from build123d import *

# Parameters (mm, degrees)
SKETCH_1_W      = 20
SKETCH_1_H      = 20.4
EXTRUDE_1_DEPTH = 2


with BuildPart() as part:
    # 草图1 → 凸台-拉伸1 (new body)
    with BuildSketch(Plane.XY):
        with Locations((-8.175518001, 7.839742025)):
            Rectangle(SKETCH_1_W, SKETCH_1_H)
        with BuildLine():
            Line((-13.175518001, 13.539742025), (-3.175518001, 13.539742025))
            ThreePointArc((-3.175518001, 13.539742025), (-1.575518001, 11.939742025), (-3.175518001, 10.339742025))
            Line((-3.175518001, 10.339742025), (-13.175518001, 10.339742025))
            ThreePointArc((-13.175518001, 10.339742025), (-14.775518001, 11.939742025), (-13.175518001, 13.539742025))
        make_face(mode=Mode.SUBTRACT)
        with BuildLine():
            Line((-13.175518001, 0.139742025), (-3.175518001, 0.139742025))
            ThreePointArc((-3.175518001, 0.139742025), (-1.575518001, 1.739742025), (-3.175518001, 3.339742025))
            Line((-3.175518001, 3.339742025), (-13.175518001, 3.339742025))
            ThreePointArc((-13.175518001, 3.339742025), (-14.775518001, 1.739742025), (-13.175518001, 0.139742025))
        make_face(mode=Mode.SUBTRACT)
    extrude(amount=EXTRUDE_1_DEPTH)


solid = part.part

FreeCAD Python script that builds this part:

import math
import FreeCAD as App
import Part
import Sketcher

V = App.Vector
Q = App.Units.Quantity

doc = App.newDocument("Part")
body = doc.addObject("PartDesign::Body", "Body")

sketch1 = body.newObject("Sketcher::SketchObject", "Sketch")
sketch1.AttachmentSupport = (doc.getObject("XY_Plane"), [""])
sketch1.MapMode = "FlatFace"
sketch1.addGeometry(Part.LineSegment(V(-18.2, 18, 0), V(-18.2, -2.4, 0)), False)
sketch1.addGeometry(Part.LineSegment(V(-18.2, -2.4, 0), V(1.8, -2.4, 0)), False)
sketch1.addGeometry(Part.LineSegment(V(1.8, -2.4, 0), V(1.8, 18, 0)), False)
sketch1.addGeometry(Part.LineSegment(V(1.8, 18, 0), V(-18.2, 18, 0)), False)
sketch1.addGeometry(Part.LineSegment(V(-3.2, 0.1, 0), V(-13.2, 0.1, 0)), False)
sketch1.addGeometry(Part.ArcOfCircle(Part.Circle(V(-13.2, 1.7, 0), V(0, 0, 1), 1.6), math.radians(90), math.radians(270)), False)
sketch1.addGeometry(Part.LineSegment(V(-13.2, 3.3, 0), V(-3.2, 3.3, 0)), False)
sketch1.addGeometry(Part.ArcOfCircle(Part.Circle(V(-3.2, 1.7, 0), V(0, 0, 1), 1.6), math.radians(-90), math.radians(90)), False)
sketch1.addGeometry(Part.ArcOfCircle(Part.Circle(V(-13.2, 11.9, 0), V(0, 0, 1), 1.6), math.radians(90), math.radians(270)), False)
sketch1.addGeometry(Part.LineSegment(V(-13.2, 13.5, 0), V(-3.2, 13.5, 0)), False)
sketch1.addGeometry(Part.ArcOfCircle(Part.Circle(V(-3.2, 11.9, 0), V(0, 0, 1), 1.6), math.radians(-90), math.radians(90)), False)
sketch1.addGeometry(Part.LineSegment(V(-3.2, 10.3, 0), V(-13.2, 10.3, 0)), False)
sketch1.addConstraint(Sketcher.Constraint("Coincident", 0, 2, 1, 1))
sketch1.addConstraint(Sketcher.Constraint("Coincident", 1, 2, 2, 1))
sketch1.addConstraint(Sketcher.Constraint("Coincident", 2, 2, 3, 1))
sketch1.addConstraint(Sketcher.Constraint("Coincident", 3, 2, 0, 1))
sketch1.addConstraint(Sketcher.Constraint("Tangent", 4, 2, 5, 2))
sketch1.addConstraint(Sketcher.Constraint("Tangent", 5, 1, 6, 1))
sketch1.addConstraint(Sketcher.Constraint("Tangent", 6, 2, 7, 2))
sketch1.addConstraint(Sketcher.Constraint("Tangent", 7, 1, 4, 1))
sketch1.addConstraint(Sketcher.Constraint("Tangent", 8, 1, 9, 1))
sketch1.addConstraint(Sketcher.Constraint("Tangent", 9, 2, 10, 2))
sketch1.addConstraint(Sketcher.Constraint("Tangent", 10, 1, 11, 1))
sketch1.addConstraint(Sketcher.Constraint("Tangent", 11, 2, 8, 2))
sketch1.addConstraint(Sketcher.Constraint("Vertical", 0))
sketch1.addConstraint(Sketcher.Constraint("Horizontal", 1))
sketch1.addConstraint(Sketcher.Constraint("Vertical", 2))
sketch1.addConstraint(Sketcher.Constraint("Horizontal", 3))
sketch1.addConstraint(Sketcher.Constraint("Horizontal", 4))
sketch1.addConstraint(Sketcher.Constraint("Horizontal", 6))
sketch1.addConstraint(Sketcher.Constraint("Horizontal", 9))
sketch1.addConstraint(Sketcher.Constraint("Horizontal", 11))
sketch1.addConstraint(Sketcher.Constraint("Equal", 7, 8))
sketch1.addConstraint(Sketcher.Constraint("Vertical", 5, 3, 8, 3))
sketch1.addConstraint(Sketcher.Constraint("Vertical", 7, 3, 10, 3))
sketch1.addConstraint(Sketcher.Constraint("Radius", 5, Q("1.6 mm")))
sketch1.addConstraint(Sketcher.Constraint("DistanceX", 1, 1, 1, 2, Q("20 mm")))
sketch1.addConstraint(Sketcher.Constraint("DistanceX", 4, 2, 4, 1, Q("10 mm")))
sketch1.addConstraint(Sketcher.Constraint("DistanceY", 0, 2, 0, 1, Q("20.4 mm")))
sketch1.addConstraint(Sketcher.Constraint("DistanceX", 0, 2, 5, 3, Q("5 mm")))
sketch1.addConstraint(Sketcher.Constraint("DistanceY", 6, 2, 10, 1, Q("7 mm")))
sketch1.addConstraint(Sketcher.Constraint("DistanceY", 0, 2, 5, 3, Q("4.1 mm")))
sketch1.addConstraint(Sketcher.Constraint("DistanceX", 5, 3, -1, 1, Q("13.175518 mm")))
sketch1.addConstraint(Sketcher.Constraint("DistanceY", -1, 1, 5, 3, Q("1.739742 mm")))
pad1 = body.newObject("PartDesign::Pad", "Pad")
pad1.Profile = sketch1
pad1.Length = 2

doc.recompute()
